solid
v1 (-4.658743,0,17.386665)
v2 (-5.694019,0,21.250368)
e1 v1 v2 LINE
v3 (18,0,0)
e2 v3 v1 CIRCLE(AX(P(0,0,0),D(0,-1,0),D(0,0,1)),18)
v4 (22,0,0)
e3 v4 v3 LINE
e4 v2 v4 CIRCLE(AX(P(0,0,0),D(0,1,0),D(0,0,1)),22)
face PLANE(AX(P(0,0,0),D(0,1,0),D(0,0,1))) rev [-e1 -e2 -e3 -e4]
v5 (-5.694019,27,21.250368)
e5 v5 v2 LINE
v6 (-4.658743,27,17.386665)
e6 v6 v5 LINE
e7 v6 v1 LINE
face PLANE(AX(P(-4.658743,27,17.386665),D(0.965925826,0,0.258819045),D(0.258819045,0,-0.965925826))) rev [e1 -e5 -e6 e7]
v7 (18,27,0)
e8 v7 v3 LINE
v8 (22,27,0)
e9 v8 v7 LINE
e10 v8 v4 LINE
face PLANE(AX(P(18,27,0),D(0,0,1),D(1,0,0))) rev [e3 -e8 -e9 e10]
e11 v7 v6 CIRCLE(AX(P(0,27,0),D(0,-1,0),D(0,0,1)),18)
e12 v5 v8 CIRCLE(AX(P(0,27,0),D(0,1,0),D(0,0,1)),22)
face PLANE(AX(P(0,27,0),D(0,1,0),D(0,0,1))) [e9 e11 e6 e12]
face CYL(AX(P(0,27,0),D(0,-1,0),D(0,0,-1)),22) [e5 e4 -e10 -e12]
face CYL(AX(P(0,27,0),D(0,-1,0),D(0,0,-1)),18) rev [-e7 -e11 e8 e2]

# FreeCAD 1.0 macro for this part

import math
import FreeCAD as App
import Part
import Sketcher
Q = App.Units.Quantity

doc = App.newDocument("Part")
body = doc.addObject("PartDesign::Body", "Body")

sketch1 = body.newObject("Sketcher::SketchObject", "Sketch")
sketch1.AttachmentSupport = (doc.getObject("XZ_Plane"), [""])
sketch1.MapMode = "FlatFace"
sketch1.addGeometry([
    Part.LineSegment(App.Vector(22, 0, 0), App.Vector(18, 0, 0)),
    Part.ArcOfCircle(Part.Circle(App.Vector(0, 0, 0), App.Vector(0, 0, 1), 18), math.radians(0), math.radians(105)),
    Part.LineSegment(App.Vector(-4.658743, 17.386665, 0), App.Vector(-5.694019, 21.250368, 0)),
    Part.ArcOfCircle(Part.Circle(App.Vector(0, 0, 0), App.Vector(0, 0, 1), 22), math.radians(0), math.radians(105)),
], False)
sketch1.addConstraint([
    Sketcher.Constraint("Coincident", 0, 2, 1, 1),
    Sketcher.Constraint("Coincident", 1, 2, 2, 1),
    Sketcher.Constraint("Coincident", 2, 2, 3, 2),
    Sketcher.Constraint("Coincident", 3, 1, 0, 1),
    Sketcher.Constraint("Horizontal", 0),
    Sketcher.Constraint("Coincident", 1, 3, -1, 1),
    Sketcher.Constraint("Coincident", 3, 3, -1, 1),
    Sketcher.Constraint("PointOnObject", 0, 2, -1),
    Sketcher.Constraint("Radius", 1, 18.0),
    Sketcher.Constraint("Radius", 3, 22.0),
    Sketcher.Constraint("Angle", 2, Q("105 deg")),
    Sketcher.Constraint("DistanceX", 2, 2, -1, 1, 5.694019),
])
pad1 = body.newObject("PartDesign::Pad", "Pad")
pad1.Profile = sketch1
pad1.Length = 27
pad1.Reversed = True

doc.recompute()
